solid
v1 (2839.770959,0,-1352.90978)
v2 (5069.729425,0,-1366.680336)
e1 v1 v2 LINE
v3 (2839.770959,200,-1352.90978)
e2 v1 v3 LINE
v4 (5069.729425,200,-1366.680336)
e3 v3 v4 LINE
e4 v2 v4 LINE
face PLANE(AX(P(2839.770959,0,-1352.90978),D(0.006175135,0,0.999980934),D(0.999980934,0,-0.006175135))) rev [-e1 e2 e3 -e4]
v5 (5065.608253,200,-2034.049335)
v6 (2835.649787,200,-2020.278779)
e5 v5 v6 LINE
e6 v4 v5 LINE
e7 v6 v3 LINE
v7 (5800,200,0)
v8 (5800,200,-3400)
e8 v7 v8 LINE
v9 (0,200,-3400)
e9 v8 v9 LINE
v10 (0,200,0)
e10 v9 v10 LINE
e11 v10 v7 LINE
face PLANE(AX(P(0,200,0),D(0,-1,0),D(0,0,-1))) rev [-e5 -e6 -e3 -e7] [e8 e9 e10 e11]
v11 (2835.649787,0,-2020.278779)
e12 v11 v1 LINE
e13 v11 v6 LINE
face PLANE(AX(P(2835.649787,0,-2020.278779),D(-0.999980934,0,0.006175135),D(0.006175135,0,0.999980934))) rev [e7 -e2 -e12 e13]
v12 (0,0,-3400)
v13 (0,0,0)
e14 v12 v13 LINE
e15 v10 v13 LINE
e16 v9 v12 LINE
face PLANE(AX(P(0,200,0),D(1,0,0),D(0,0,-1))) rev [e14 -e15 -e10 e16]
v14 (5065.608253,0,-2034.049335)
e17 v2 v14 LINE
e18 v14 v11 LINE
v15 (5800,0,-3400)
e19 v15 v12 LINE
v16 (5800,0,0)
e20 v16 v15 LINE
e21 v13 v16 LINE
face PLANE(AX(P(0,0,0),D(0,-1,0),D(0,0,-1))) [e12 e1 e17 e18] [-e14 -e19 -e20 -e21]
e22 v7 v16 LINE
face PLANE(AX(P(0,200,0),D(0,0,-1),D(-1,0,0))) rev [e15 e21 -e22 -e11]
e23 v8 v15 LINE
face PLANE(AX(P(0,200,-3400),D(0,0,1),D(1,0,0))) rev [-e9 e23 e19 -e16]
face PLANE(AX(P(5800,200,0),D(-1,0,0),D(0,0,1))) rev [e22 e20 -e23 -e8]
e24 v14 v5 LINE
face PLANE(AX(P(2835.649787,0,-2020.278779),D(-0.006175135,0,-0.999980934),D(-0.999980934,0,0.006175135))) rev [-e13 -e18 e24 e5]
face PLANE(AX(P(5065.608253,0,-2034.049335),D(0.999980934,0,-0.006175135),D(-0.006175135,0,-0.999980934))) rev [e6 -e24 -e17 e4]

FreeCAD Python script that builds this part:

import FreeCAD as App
import Part
import Sketcher


def add_polygon(sketch, points):
    """Adds a closed chain of lines whose ends are joined by coincident constraints."""
    first, n = sketch.GeometryCount, len(points)
    for a, b in zip(points, points[1:] + points[:1]):
        sketch.addGeometry(Part.LineSegment(App.Vector(*a, 0), App.Vector(*b, 0)), False)
    for i in range(n):
        sketch.addConstraint(Sketcher.Constraint("Coincident", first + i, 2, first + (i + 1) % n, 1))

doc = App.newDocument("Part")
body = doc.addObject("PartDesign::Body", "Body")

sketch1 = body.newObject("Sketcher::SketchObject", "Sketch")
sketch1.AttachmentSupport = (doc.getObject("XZ_Plane"), [""])
sketch1.MapMode = "FlatFace"
add_polygon(sketch1, [(0, -3400), (0, 0), (5800, 0), (5800, -3400)])
sketch1.addConstraint([
    Sketcher.Constraint("Vertical", 0),
    Sketcher.Constraint("Horizontal", 1),
    Sketcher.Constraint("Vertical", 2),
    Sketcher.Constraint("Horizontal", 3),
    Sketcher.Constraint("Coincident", 0, 2, -1, 1),
    Sketcher.Constraint("DistanceX", 1, 1, 1, 2, 5800.0),
    Sketcher.Constraint("DistanceY", 0, 1, 0, 2, 3400.0),
])
pad1 = body.newObject("PartDesign::Pad", "Pad")
pad1.Profile = sketch1
pad1.Length = 200
pad1.Reversed = True

sketch2 = body.newObject("Sketcher::SketchObject", "Sketch001")
sketch2.AttachmentSupport = (doc.getObject("XZ_Plane"), [""])
sketch2.MapMode = "FlatFace"
sketch2.AttachmentOffset = App.Placement(App.Vector(0, 0, -200), App.Rotation())
add_polygon(sketch2, [(5066, -2034), (2836, -2020), (2840, -1353), (5070, -1367)])
sketch2.addConstraint([
    Sketcher.Constraint("Perpendicular", 0, 1),
    Sketcher.Constraint("Perpendicular", 1, 2),
    Sketcher.Constraint("Perpendicular", 2, 3),
    Sketcher.Constraint("DistanceY", 0, 2, 1, 2, 667.368999),
    Sketcher.Constraint("DistanceY", 0, 2, -1, 1, 2020.278779),
    Sketcher.Constraint("DistanceX", -1, 1, 1, 2, 2839.770959),
    Sketcher.Constraint("DistanceX", 0, 2, 1, 2, 4.121172),
    Sketcher.Constraint("Distance", 0, 2230.000984),
])
pocket1 = body.newObject("PartDesign::Pocket", "Pocket")
pocket1.Profile = sketch2
pocket1.Length = 200
pocket1.Reversed = True

doc.recompute()
